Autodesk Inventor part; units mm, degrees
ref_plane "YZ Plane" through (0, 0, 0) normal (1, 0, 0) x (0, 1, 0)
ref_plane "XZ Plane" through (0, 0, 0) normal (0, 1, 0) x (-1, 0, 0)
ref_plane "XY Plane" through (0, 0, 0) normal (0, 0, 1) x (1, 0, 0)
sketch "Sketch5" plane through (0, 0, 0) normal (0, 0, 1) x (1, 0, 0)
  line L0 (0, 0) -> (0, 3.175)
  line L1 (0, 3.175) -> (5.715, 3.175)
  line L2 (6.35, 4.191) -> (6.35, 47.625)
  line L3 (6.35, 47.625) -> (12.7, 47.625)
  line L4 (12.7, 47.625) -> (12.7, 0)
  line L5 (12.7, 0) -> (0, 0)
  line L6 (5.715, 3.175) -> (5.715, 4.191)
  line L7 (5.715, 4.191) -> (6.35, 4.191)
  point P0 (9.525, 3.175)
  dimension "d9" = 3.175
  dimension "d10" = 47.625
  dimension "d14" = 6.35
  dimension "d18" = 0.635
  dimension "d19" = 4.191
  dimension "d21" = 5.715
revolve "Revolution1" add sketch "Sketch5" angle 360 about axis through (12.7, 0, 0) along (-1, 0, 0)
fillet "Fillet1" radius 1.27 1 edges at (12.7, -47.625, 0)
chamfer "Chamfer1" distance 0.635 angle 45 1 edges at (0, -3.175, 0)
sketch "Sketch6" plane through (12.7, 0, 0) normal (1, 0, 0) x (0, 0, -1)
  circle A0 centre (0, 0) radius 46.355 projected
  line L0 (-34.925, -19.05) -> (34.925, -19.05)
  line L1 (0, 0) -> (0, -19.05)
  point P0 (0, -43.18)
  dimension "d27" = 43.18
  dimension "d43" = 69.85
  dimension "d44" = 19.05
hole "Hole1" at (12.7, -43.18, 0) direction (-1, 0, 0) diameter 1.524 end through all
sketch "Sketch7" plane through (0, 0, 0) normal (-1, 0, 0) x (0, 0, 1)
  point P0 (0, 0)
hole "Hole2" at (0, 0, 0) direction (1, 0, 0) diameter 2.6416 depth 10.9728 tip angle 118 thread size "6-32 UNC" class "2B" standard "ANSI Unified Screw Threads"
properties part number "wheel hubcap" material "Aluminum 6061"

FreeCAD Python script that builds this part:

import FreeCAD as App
import Part
import Sketcher
Q = App.Units.Quantity


def edges_at(feature, points):
    """Names of the edges that pass closest to the given points."""
    edges = feature.Shape.Edges
    near = lambda p: min(range(len(edges)), key=lambda i: edges[i].distToShape(Part.Vertex(*p))[0])
    return sorted({f"Edge{near(p) + 1}" for p in points})


def add_polygon(sketch, points):
    """Adds a closed chain of lines whose ends are joined by coincident constraints."""
    first, n = sketch.GeometryCount, len(points)
    for a, b in zip(points, points[1:] + points[:1]):
        sketch.addGeometry(Part.LineSegment(App.Vector(*a, 0), App.Vector(*b, 0)), False)
    for i in range(n):
        sketch.addConstraint(Sketcher.Constraint("Coincident", first + i, 2, first + (i + 1) % n, 1))

doc = App.newDocument("Part")
body = doc.addObject("PartDesign::Body", "Body")

sketch1 = doc.addObject("Sketcher::SketchObject", "Sketch")
body.addObject(sketch1)
sketch1.AttachmentSupport = (doc.XY_Plane, [""])
sketch1.MapMode = "FlatFace"
add_polygon(sketch1, [(0, 3.175), (0, 0), (12.7, 0), (12.7, 47.625), (6.35, 47.625), (6.35, 4.191), (5.715, 4.191), (5.715, 3.175)])
sketch1.addConstraint([
    Sketcher.Constraint("Vertical", 0),
    Sketcher.Constraint("Horizontal", 1),
    Sketcher.Constraint("Vertical", 2),
    Sketcher.Constraint("Horizontal", 3),
    Sketcher.Constraint("Vertical", 4),
    Sketcher.Constraint("Horizontal", 5),
    Sketcher.Constraint("Vertical", 6),
    Sketcher.Constraint("Horizontal", 7),
    Sketcher.Constraint("Coincident", 0, 2, -1, 1),
    Sketcher.Constraint("DistanceX", 3, 2, 3, 1, Q("0.25 in")),
    Sketcher.Constraint("DistanceX", 5, 2, 5, 1, Q("0.025 in")),
    Sketcher.Constraint("DistanceX", 7, 2, 7, 1, Q("0.225 in")),
    Sketcher.Constraint("DistanceY", 0, 2, 0, 1, Q("0.125 in")),
    Sketcher.Constraint("DistanceY", 2, 1, 2, 2, Q("1.875 in")),
    Sketcher.Constraint("DistanceY", -1, 1, 4, 2, Q("0.165 in")),
])
revolution = doc.addObject("PartDesign::Revolution", "Revolution")
body.addObject(revolution)
revolution.Profile = sketch1
revolution.ReferenceAxis = (sketch1, ["H_Axis"])
revolution.Angle = 360
doc.recompute()

fillet = doc.addObject("PartDesign::Fillet", "Fillet")
body.addObject(fillet)
fillet.Base = (revolution, edges_at(revolution, [(12.7, -47.625, 0)]))
fillet.Radius = Q("0.05 in")
doc.recompute()

chamfer = doc.addObject("PartDesign::Chamfer", "Chamfer")
body.addObject(chamfer)
chamfer.Base = (fillet, edges_at(fillet, [(0, -3.175, 0)]))
chamfer.Size = Q("0.025 in")

sketch2 = doc.addObject("Sketcher::SketchObject", "Sketch001")
body.addObject(sketch2)
sketch2.AttachmentSupport = (doc.YZ_Plane, [""])
sketch2.MapMode = "FlatFace"
sketch2.AttachmentOffset = App.Placement(App.Vector(0, 0, 0.5 * 25.4), App.Rotation())
sketch2.addGeometry(Part.Circle(App.Vector(-43.18, 0, 0), App.Vector(0, 0, 1), 0.762), False)
sketch2.addConstraint([
    Sketcher.Constraint("PointOnObject", 0, 3, -1),
    Sketcher.Constraint("Diameter", 0, Q("0.06 in")),
    Sketcher.Constraint("DistanceX", 0, 3, -1, 1, Q("1.7 in")),
])
doc.recompute()
hole = doc.addObject("PartDesign::Hole", "Hole")
body.addObject(hole)
hole.Profile = sketch2
hole.ThreadType = "None"
hole.Diameter = Q("0.06 in")
hole.DepthType = "ThroughAll"

sketch3 = doc.addObject("Sketcher::SketchObject", "Sketch002")
body.addObject(sketch3)
sketch3.AttachmentSupport = (doc.YZ_Plane, [""])
sketch3.MapMode = "FlatFace"
sketch3.addGeometry(Part.Circle(App.Vector(0, 0, 0), App.Vector(0, 0, 1), 1.3208), False)
sketch3.addConstraint([
    Sketcher.Constraint("Coincident", 0, 3, -1, 1),
    Sketcher.Constraint("Diameter", 0, Q("0.104 in")),
])
doc.recompute()
hole2 = doc.addObject("PartDesign::Hole", "Hole001")
body.addObject(hole2)
hole2.Profile = sketch3
hole2.ThreadType = "None"
hole2.Diameter = Q("0.104 in")
hole2.DepthType = "Dimension"
hole2.Depth = Q("0.432 in")
hole2.DrillPoint = "Angled"
hole2.DrillPointAngle = 118
hole2.Reversed = True

doc.recompute()
